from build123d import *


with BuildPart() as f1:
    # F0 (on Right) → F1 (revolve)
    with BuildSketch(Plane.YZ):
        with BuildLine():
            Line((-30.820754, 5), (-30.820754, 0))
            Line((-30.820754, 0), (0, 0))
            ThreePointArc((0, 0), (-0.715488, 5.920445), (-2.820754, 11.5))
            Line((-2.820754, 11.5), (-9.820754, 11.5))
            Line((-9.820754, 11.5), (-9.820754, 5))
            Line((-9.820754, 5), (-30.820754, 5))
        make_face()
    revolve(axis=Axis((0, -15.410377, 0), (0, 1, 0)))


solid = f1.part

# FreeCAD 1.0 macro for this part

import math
import FreeCAD as App
import Part
import Sketcher

doc = App.newDocument("Part")
params = doc.addObject("Spreadsheet::Sheet", "Params")
for row, (alias, value) in enumerate([
    ("sketch1_width", "7 mm"),
    ("sketch1_width2", "21 mm"),
    ("sketch1_height", "5 mm"),
    ("sketch1_height2", "6.5 mm"),
    ("revolution_angle", "360 deg"),
], start=1):
    params.set(f"A{row}", alias)
    params.set(f"B{row}", "=" + value)
    params.setAlias(f"B{row}", alias)

body = doc.addObject("PartDesign::Body", "Body")

# Sketch on YZ plane
sketch1 = doc.addObject("Sketcher::SketchObject", "Sketch")
body.addObject(sketch1)
sketch1.AttachmentSupport = (doc.YZ_Plane, [""])
sketch1.MapMode = "FlatFace"
sketch1.addGeometry([
    Part.LineSegment(App.Vector(-30.820754, 5, 0), App.Vector(-30.820754, 0, 0)),  # 0
    Part.LineSegment(App.Vector(-30.820754, 0, 0), App.Vector(0, 0, 0)),  # 1
    Part.ArcOfCircle(Part.Circle(App.Vector(-24.852699, -0.000002, 0), App.Vector(0, 0, 1), 24.852699), math.radians(0.000005), math.radians(27.563183)),  # 2
    Part.LineSegment(App.Vector(-2.820754, 11.5, 0), App.Vector(-9.820754, 11.5, 0)),  # 3
    Part.LineSegment(App.Vector(-9.820754, 11.5, 0), App.Vector(-9.820754, 5, 0)),  # 4
    Part.LineSegment(App.Vector(-9.820754, 5, 0), App.Vector(-30.820754, 5, 0)),  # 5
], False)
sketch1.addConstraint([
    Sketcher.Constraint("Coincident", 0, 2, 1, 1),
    Sketcher.Constraint("Coincident", 1, 2, 2, 1),
    Sketcher.Constraint("Coincident", 2, 2, 3, 1),
    Sketcher.Constraint("Coincident", 3, 2, 4, 1),
    Sketcher.Constraint("Coincident", 4, 2, 5, 1),
    Sketcher.Constraint("Coincident", 5, 2, 0, 1),
    Sketcher.Constraint("Vertical", 0),
    Sketcher.Constraint("Horizontal", 1),
    Sketcher.Constraint("Horizontal", 3),
    Sketcher.Constraint("Vertical", 4),
    Sketcher.Constraint("Horizontal", 5),
    Sketcher.Constraint("Coincident", 1, 2, -1, 1),
    Sketcher.Constraint("PointOnObject", 2, 3, -1),
    Sketcher.Constraint("DistanceX", 3, 2, 3, 1, 7.0),
    Sketcher.Constraint("DistanceX", 5, 2, 5, 1, 21.0),
    Sketcher.Constraint("DistanceY", 0, 2, 0, 1, 5.0),
    Sketcher.Constraint("DistanceY", 4, 2, 4, 1, 6.5),
    Sketcher.Constraint("Radius", 2, 24.852699),
])
sketch1.setExpression("Constraints[13]", "Params.sketch1_width")
sketch1.setExpression("Constraints[14]", "Params.sketch1_width2")
sketch1.setExpression("Constraints[15]", "Params.sketch1_height")
sketch1.setExpression("Constraints[16]", "Params.sketch1_height2")
revolution = doc.addObject("PartDesign::Revolution", "Revolution")
body.addObject(revolution)
revolution.Profile = sketch1
revolution.ReferenceAxis = (sketch1, ["H_Axis"])
revolution.setExpression("Angle", "Params.revolution_angle")

doc.recompute()
